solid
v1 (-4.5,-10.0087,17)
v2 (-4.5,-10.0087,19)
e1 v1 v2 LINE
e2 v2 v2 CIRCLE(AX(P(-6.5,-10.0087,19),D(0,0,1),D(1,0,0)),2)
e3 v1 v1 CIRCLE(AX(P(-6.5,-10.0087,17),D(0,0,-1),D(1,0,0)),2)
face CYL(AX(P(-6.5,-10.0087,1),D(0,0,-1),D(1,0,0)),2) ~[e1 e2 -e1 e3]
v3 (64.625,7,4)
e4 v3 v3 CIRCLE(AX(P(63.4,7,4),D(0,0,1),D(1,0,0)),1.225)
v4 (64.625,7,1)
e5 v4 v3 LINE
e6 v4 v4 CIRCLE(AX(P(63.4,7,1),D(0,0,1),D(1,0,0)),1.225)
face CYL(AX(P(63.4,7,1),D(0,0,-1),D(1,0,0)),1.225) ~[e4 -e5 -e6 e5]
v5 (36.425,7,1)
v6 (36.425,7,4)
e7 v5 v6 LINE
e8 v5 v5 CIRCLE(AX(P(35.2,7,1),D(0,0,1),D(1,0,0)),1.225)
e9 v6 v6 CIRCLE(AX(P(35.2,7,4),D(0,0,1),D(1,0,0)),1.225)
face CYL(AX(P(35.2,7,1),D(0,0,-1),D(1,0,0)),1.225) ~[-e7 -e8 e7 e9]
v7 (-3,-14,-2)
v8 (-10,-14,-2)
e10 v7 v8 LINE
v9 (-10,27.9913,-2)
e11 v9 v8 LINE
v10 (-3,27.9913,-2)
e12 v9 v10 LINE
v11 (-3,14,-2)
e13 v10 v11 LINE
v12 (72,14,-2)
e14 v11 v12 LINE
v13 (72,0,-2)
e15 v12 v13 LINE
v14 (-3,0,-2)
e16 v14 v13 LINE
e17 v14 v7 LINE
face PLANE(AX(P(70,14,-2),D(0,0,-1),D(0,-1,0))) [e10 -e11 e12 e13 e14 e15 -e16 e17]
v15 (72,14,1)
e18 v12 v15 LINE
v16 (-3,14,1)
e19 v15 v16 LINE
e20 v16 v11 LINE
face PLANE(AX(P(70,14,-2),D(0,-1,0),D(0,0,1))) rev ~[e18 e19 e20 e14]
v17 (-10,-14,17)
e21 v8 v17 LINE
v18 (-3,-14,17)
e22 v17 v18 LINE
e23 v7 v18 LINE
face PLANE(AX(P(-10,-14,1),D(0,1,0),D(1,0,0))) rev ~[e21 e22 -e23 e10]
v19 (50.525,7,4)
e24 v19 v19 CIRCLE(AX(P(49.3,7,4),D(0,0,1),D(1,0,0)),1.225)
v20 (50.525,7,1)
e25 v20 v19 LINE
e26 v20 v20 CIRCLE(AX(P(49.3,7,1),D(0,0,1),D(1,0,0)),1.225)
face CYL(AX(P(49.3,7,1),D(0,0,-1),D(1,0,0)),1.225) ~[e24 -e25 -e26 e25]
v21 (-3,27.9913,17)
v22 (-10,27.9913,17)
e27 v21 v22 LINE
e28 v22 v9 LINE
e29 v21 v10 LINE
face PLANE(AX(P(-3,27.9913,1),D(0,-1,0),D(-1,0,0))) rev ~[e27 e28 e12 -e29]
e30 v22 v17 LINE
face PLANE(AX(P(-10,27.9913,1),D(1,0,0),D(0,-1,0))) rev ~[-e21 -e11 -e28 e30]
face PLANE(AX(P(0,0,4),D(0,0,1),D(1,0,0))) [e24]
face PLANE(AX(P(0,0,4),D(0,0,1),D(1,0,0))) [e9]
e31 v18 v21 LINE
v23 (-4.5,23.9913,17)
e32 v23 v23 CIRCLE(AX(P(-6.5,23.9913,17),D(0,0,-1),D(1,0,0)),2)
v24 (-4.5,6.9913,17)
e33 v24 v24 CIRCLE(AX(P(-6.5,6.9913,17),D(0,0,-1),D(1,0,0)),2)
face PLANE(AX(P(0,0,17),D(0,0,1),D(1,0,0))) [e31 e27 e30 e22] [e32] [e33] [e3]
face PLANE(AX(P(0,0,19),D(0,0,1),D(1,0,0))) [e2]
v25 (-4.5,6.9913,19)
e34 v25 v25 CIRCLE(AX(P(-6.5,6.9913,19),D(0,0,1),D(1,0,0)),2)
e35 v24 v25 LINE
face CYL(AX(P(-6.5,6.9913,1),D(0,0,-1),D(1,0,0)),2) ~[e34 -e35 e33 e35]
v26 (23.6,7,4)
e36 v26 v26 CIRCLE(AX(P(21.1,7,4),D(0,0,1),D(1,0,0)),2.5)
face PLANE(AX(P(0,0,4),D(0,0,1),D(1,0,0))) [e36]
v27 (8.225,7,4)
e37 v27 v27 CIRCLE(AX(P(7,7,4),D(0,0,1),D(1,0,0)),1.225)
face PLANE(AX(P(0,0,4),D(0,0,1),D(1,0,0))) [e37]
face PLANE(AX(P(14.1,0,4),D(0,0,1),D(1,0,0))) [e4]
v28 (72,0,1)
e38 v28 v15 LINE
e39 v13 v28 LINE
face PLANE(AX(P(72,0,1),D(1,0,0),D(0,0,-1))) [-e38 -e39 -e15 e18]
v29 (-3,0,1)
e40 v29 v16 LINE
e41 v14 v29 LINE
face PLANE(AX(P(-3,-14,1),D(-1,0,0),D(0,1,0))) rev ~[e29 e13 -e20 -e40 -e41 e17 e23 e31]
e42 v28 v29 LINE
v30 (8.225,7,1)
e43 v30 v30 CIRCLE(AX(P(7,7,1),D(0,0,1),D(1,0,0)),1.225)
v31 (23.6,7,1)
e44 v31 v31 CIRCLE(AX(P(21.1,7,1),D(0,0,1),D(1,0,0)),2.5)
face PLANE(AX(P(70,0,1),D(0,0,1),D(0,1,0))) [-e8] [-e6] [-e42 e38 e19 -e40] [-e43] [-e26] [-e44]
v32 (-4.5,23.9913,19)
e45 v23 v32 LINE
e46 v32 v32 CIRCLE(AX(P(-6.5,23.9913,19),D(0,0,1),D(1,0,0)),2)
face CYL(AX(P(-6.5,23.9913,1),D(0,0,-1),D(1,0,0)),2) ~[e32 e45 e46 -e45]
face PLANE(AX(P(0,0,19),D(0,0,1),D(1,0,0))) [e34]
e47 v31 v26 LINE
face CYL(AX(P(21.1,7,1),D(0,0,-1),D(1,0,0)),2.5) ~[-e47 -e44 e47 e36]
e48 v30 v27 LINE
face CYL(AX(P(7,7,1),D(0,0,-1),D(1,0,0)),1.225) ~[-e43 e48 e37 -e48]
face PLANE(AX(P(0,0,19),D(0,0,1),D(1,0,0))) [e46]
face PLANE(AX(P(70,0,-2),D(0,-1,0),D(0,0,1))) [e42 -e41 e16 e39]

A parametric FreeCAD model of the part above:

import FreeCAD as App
import Part
import Sketcher
Q = App.Units.Quantity

doc = App.newDocument("Part")
params = doc.addObject("Spreadsheet::Sheet", "Params")
for row, (alias, value) in enumerate([
    ("sketch1_width", "70 mm"),
    ("sketch1_height", "14 mm"),
    ("pad1_length", "1 mm"),
    ("sketch2_diameter", "2.45 mm"),
    ("pad2_length", "3 mm"),
    ("sketch3_diameter", "5 mm"),
    ("pad3_length", "3 mm"),
    ("sketch4_diameter", "2.45 mm"),
    ("pad4_length", "3 mm"),
    ("linearpattern_pitch", "14.1 mm"),
    ("sketch5_width", "14 mm"),
    ("sketch5_height", "1 mm"),
    ("pad5_length", "10 mm"),
    ("sketch6_height", "1 mm"),
    ("pad6_length", "7 mm"),
    ("sketch7_width", "7 mm"),
    ("sketch7_width2", "73 mm"),
    ("sketch7_height", "14 mm"),
    ("pad7_length", "2 mm"),
    ("sketch8_diameter", "4 mm"),
    ("pad8_length", "18 mm"),
    ("sketch9_width", "7 mm"),
    ("pad9_length", "16 mm"),
    ("sketch10_width", "14 mm"),
    ("sketch10_height", "3 mm"),
    ("pad10_length", "2 mm"),
], start=1):
    params.set(f"A{row}", alias)
    params.set(f"B{row}", "=" + value)
    params.setAlias(f"B{row}", alias)

body = doc.addObject("PartDesign::Body", "Body")

sketch1 = body.newObject("Sketcher::SketchObject", "Sketch")
sketch1.AttachmentSupport = (doc.getObject("XY_Plane"), [""])
sketch1.MapMode = "FlatFace"
sketch1.addGeometry(Part.LineSegment(App.Vector(0, 14, 0), App.Vector(0, 0, 0)), False)
sketch1.addGeometry(Part.LineSegment(App.Vector(0, 0, 0), App.Vector(70, 0, 0)), False)
sketch1.addGeometry(Part.LineSegment(App.Vector(70, 0, 0), App.Vector(70, 14, 0)), False)
sketch1.addGeometry(Part.LineSegment(App.Vector(70, 14, 0), App.Vector(0, 14, 0)), False)
sketch1.addConstraint(Sketcher.Constraint("Coincident", 0, 2, 1, 1))
sketch1.addConstraint(Sketcher.Constraint("Coincident", 1, 2, 2, 1))
sketch1.addConstraint(Sketcher.Constraint("Coincident", 2, 2, 3, 1))
sketch1.addConstraint(Sketcher.Constraint("Coincident", 3, 2, 0, 1))
sketch1.addConstraint(Sketcher.Constraint("Vertical", 0))
sketch1.addConstraint(Sketcher.Constraint("Horizontal", 1))
sketch1.addConstraint(Sketcher.Constraint("Vertical", 2))
sketch1.addConstraint(Sketcher.Constraint("Horizontal", 3))
sketch1.addConstraint(Sketcher.Constraint("Coincident", 0, 2, -1, 1))
sketch1.addConstraint(Sketcher.Constraint("DistanceX", 1, 1, 1, 2, Q("70 mm")))
sketch1.addConstraint(Sketcher.Constraint("DistanceY", 0, 2, 0, 1, Q("14 mm")))
sketch1.setExpression("Constraints[9]", "Params.sketch1_width")
sketch1.setExpression("Constraints[10]", "Params.sketch1_height")
pad1 = body.newObject("PartDesign::Pad", "Pad")
pad1.Profile = sketch1
pad1.setExpression("Length", "Params.pad1_length")

sketch2 = body.newObject("Sketcher::SketchObject", "Sketch001")
sketch2.AttachmentSupport = (doc.getObject("XY_Plane"), [""])
sketch2.MapMode = "FlatFace"
sketch2.AttachmentOffset = App.Placement(App.Vector(0, 0, 1), App.Rotation())
sketch2.addGeometry(Part.Circle(App.Vector(7, 7, 0), App.Vector(0, 0, 1), 1.225), False)
sketch2.addGeometry(Part.Circle(App.Vector(35.2, 7, 0), App.Vector(0, 0, 1), 1.225), False)
sketch2.addConstraint(Sketcher.Constraint("Equal", 0, 1))
sketch2.addConstraint(Sketcher.Constraint("Horizontal", 0, 3, 1, 3))
sketch2.addConstraint(Sketcher.Constraint("Diameter", 0, Q("2.45 mm")))
sketch2.addConstraint(Sketcher.Constraint("DistanceX", 0, 3, 1, 3, Q("28.2 mm")))
sketch2.addConstraint(Sketcher.Constraint("DistanceX", -1, 1, 0, 3, Q("7 mm")))
sketch2.addConstraint(Sketcher.Constraint("DistanceY", -1, 1, 0, 3, Q("7 mm")))
sketch2.setExpression("Constraints[2]", "Params.sketch2_diameter")
pad2 = body.newObject("PartDesign::Pad", "Pad001")
pad2.Profile = sketch2
pad2.setExpression("Length", "Params.pad2_length")

sketch3 = body.newObject("Sketcher::SketchObject", "Sketch002")
sketch3.AttachmentSupport = (doc.getObject("XY_Plane"), [""])
sketch3.MapMode = "FlatFace"
sketch3.AttachmentOffset = App.Placement(App.Vector(0, 0, 1), App.Rotation())
sketch3.addGeometry(Part.Circle(App.Vector(21.1, 7, 0), App.Vector(0, 0, 1), 2.5), False)
sketch3.addConstraint(Sketcher.Constraint("Diameter", 0, Q("5 mm")))
sketch3.addConstraint(Sketcher.Constraint("DistanceY", -1, 1, 0, 3, Q("7 mm")))
sketch3.addConstraint(Sketcher.Constraint("DistanceX", -1, 1, 0, 3, Q("21.1 mm")))
sketch3.setExpression("Constraints[0]", "Params.sketch3_diameter")
pad3 = body.newObject("PartDesign::Pad", "Pad002")
pad3.Profile = sketch3
pad3.setExpression("Length", "Params.pad3_length")

sketch4 = body.newObject("Sketcher::SketchObject", "Sketch003")
sketch4.AttachmentSupport = (doc.getObject("XY_Plane"), [""])
sketch4.MapMode = "FlatFace"
sketch4.AttachmentOffset = App.Placement(App.Vector(0, 0, 1), App.Rotation())
sketch4.addGeometry(Part.Circle(App.Vector(49.3, 7, 0), App.Vector(0, 0, 1), 1.225), False)
sketch4.addConstraint(Sketcher.Constraint("Diameter", 0, Q("2.45 mm")))
sketch4.addConstraint(Sketcher.Constraint("DistanceY", -1, 1, 0, 3, Q("7 mm")))
sketch4.addConstraint(Sketcher.Constraint("DistanceX", -1, 1, 0, 3, Q("49.3 mm")))
sketch4.setExpression("Constraints[0]", "Params.sketch4_diameter")
pad4 = body.newObject("PartDesign::Pad", "Pad003")
pad4.Profile = sketch4
pad4.setExpression("Length", "Params.pad4_length")
doc.recompute()

linearpattern = body.newObject("PartDesign::LinearPattern", "LinearPattern")
linearpattern.Originals = [pad4]
linearpattern.Direction = (doc.getObject("X_Axis"), [""])
linearpattern.Mode = "offset"
linearpattern.setExpression("Offset", "Params.linearpattern_pitch")
linearpattern.Occurrences = 2
body.Tip = linearpattern

sketch5 = body.newObject("Sketcher::SketchObject", "Sketch004")
sketch5.AttachmentSupport = (doc.getObject("YZ_Plane"), [""])
sketch5.MapMode = "FlatFace"
sketch5.addGeometry(Part.LineSegment(App.Vector(0, 0, 0), App.Vector(0, 1, 0)), False)
sketch5.addGeometry(Part.LineSegment(App.Vector(0, 1, 0), App.Vector(14, 1, 0)), False)
sketch5.addGeometry(Part.LineSegment(App.Vector(14, 1, 0), App.Vector(14, 0, 0)), False)
sketch5.addGeometry(Part.LineSegment(App.Vector(14, 0, 0), App.Vector(0, 0, 0)), False)
sketch5.addConstraint(Sketcher.Constraint("Coincident", 0, 2, 1, 1))
sketch5.addConstraint(Sketcher.Constraint("Coincident", 1, 2, 2, 1))
sketch5.addConstraint(Sketcher.Constraint("Coincident", 2, 2, 3, 1))
sketch5.addConstraint(Sketcher.Constraint("Coincident", 3, 2, 0, 1))
sketch5.addConstraint(Sketcher.Constraint("Vertical", 0))
sketch5.addConstraint(Sketcher.Constraint("Horizontal", 1))
sketch5.addConstraint(Sketcher.Constraint("Vertical", 2))
sketch5.addConstraint(Sketcher.Constraint("Horizontal", 3))
sketch5.addConstraint(Sketcher.Constraint("Coincident", 3, 2, -1, 1))
sketch5.addConstraint(Sketcher.Constraint("DistanceX", 1, 1, 1, 2, Q("14 mm")))
sketch5.addConstraint(Sketcher.Constraint("DistanceY", 0, 1, 0, 2, Q("1 mm")))
sketch5.setExpression("Constraints[9]", "Params.sketch5_width")
sketch5.setExpression("Constraints[10]", "Params.sketch5_height")
pad5 = body.newObject("PartDesign::Pad", "Pad004")
pad5.Profile = sketch5
pad5.setExpression("Length", "Params.pad5_length")
pad5.Reversed = True

sketch6 = body.newObject("Sketcher::SketchObject", "Sketch005")
sketch6.AttachmentSupport = (doc.getObject("YZ_Plane"), [""])
sketch6.MapMode = "FlatFace"
sketch6.AttachmentOffset = App.Placement(App.Vector(0, 0, -10), App.Rotation())
sketch6.addGeometry(Part.LineSegment(App.Vector(-14, 0, 0), App.Vector(-14, 1, 0)), False)
sketch6.addGeometry(Part.LineSegment(App.Vector(-14, 1, 0), App.Vector(27.9913, 1, 0)), False)
sketch6.addGeometry(Part.LineSegment(App.Vector(27.9913, 1, 0), App.Vector(27.9913, 0, 0)), False)
sketch6.addGeometry(Part.LineSegment(App.Vector(27.9913, 0, 0), App.Vector(-14, 0, 0)), False)
sketch6.addConstraint(Sketcher.Constraint("Coincident", 0, 2, 1, 1))
sketch6.addConstraint(Sketcher.Constraint("Coincident", 1, 2, 2, 1))
sketch6.addConstraint(Sketcher.Constraint("Coincident", 2, 2, 3, 1))
sketch6.addConstraint(Sketcher.Constraint("Coincident", 3, 2, 0, 1))
sketch6.addConstraint(Sketcher.Constraint("Vertical", 0))
sketch6.addConstraint(Sketcher.Constraint("Horizontal", 1))
sketch6.addConstraint(Sketcher.Constraint("Vertical", 2))
sketch6.addConstraint(Sketcher.Constraint("Horizontal", 3))
sketch6.addConstraint(Sketcher.Constraint("PointOnObject", 2, 2, -1))
sketch6.addConstraint(Sketcher.Constraint("DistanceX", 0, 2, -1, 1, Q("14 mm")))
sketch6.addConstraint(Sketcher.Constraint("DistanceY", 0, 1, 0, 2, Q("1 mm")))
sketch6.addConstraint(Sketcher.Constraint("DistanceX", 1, 1, 1, 2, Q("41.9913 mm")))
sketch6.setExpression("Constraints[10]", "Params.sketch6_height")
pad6 = body.newObject("PartDesign::Pad", "Pad005")
pad6.Profile = sketch6
pad6.setExpression("Length", "Params.pad6_length")

sketch7 = body.newObject("Sketcher::SketchObject", "Sketch006")
sketch7.AttachmentSupport = (doc.getObject("XY_Plane"), [""])
sketch7.MapMode = "FlatFace"
sketch7.addGeometry(Part.LineSegment(App.Vector(-10, -14, 0), App.Vector(-10, 27.9913, 0)), False)
sketch7.addGeometry(Part.LineSegment(App.Vector(-10, 27.9913, 0), App.Vector(-3, 27.9913, 0)), False)
sketch7.addGeometry(Part.LineSegment(App.Vector(-3, 27.9913, 0), App.Vector(-3, 14, 0)), False)
sketch7.addGeometry(Part.LineSegment(App.Vector(-3, 14, 0), App.Vector(70, 14, 0)), False)
sketch7.addGeometry(Part.LineSegment(App.Vector(70, 14, 0), App.Vector(70, 0, 0)), False)
sketch7.addGeometry(Part.LineSegment(App.Vector(70, 0, 0), App.Vector(-3, 0, 0)), False)
sketch7.addGeometry(Part.LineSegment(App.Vector(-3, 0, 0), App.Vector(-3, -14, 0)), False)
sketch7.addGeometry(Part.LineSegment(App.Vector(-3, -14, 0), App.Vector(-10, -14, 0)), False)
sketch7.addConstraint(Sketcher.Constraint("Coincident", 0, 2, 1, 1))
sketch7.addConstraint(Sketcher.Constraint("Coincident", 1, 2, 2, 1))
sketch7.addConstraint(Sketcher.Constraint("Coincident", 2, 2, 3, 1))
sketch7.addConstraint(Sketcher.Constraint("Coincident", 3, 2, 4, 1))
sketch7.addConstraint(Sketcher.Constraint("Coincident", 4, 2, 5, 1))
sketch7.addConstraint(Sketcher.Constraint("Coincident", 5, 2, 6, 1))
sketch7.addConstraint(Sketcher.Constraint("Coincident", 6, 2, 7, 1))
sketch7.addConstraint(Sketcher.Constraint("Coincident", 7, 2, 0, 1))
sketch7.addConstraint(Sketcher.Constraint("Vertical", 0))
sketch7.addConstraint(Sketcher.Constraint("Horizontal", 1))
sketch7.addConstraint(Sketcher.Constraint("Vertical", 2))
sketch7.addConstraint(Sketcher.Constraint("Horizontal", 3))
sketch7.addConstraint(Sketcher.Constraint("Vertical", 4))
sketch7.addConstraint(Sketcher.Constraint("Horizontal", 5))
sketch7.addConstraint(Sketcher.Constraint("Vertical", 6))
sketch7.addConstraint(Sketcher.Constraint("Horizontal", 7))
sketch7.addConstraint(Sketcher.Constraint("Symmetric", 2, 2, 6, 2, -1))
sketch7.addConstraint(Sketcher.Constraint("PointOnObject", 4, 2, -1))
sketch7.addConstraint(Sketcher.Constraint("DistanceX", 1, 1, 1, 2, Q("7 mm")))
sketch7.addConstraint(Sketcher.Constraint("DistanceX", 3, 1, 3, 2, Q("73 mm")))
sketch7.addConstraint(Sketcher.Constraint("DistanceY", 4, 2, 4, 1, Q("14 mm")))
sketch7.addConstraint(Sketcher.Constraint("DistanceX", 0, 2, -1, 1, Q("10 mm")))
sketch7.addConstraint(Sketcher.Constraint("DistanceY", 0, 1, 0, 2, Q("41.9913 mm")))
sketch7.setExpression("Constraints[18]", "Params.sketch7_width")
sketch7.setExpression("Constraints[19]", "Params.sketch7_width2")
sketch7.setExpression("Constraints[20]", "Params.sketch7_height")
pad7 = body.newObject("PartDesign::Pad", "Pad006")
pad7.Profile = sketch7
pad7.setExpression("Length", "Params.pad7_length")
pad7.Reversed = True

sketch8 = body.newObject("Sketcher::SketchObject", "Sketch007")
sketch8.AttachmentSupport = (doc.getObject("XY_Plane"), [""])
sketch8.MapMode = "FlatFace"
sketch8.AttachmentOffset = App.Placement(App.Vector(0, 0, 1), App.Rotation())
sketch8.addGeometry(Part.Circle(App.Vector(-6.5, 23.9913, 0), App.Vector(0, 0, 1), 2), False)
sketch8.addGeometry(Part.Circle(App.Vector(-6.5, 6.9913, 0), App.Vector(0, 0, 1), 2), False)
sketch8.addGeometry(Part.Circle(App.Vector(-6.5, -10.0087, 0), App.Vector(0, 0, 1), 2), False)
sketch8.addConstraint(Sketcher.Constraint("Equal", 0, 1))
sketch8.addConstraint(Sketcher.Constraint("Equal", 1, 2))
sketch8.addConstraint(Sketcher.Constraint("Vertical", 0, 3, 1, 3))
sketch8.addConstraint(Sketcher.Constraint("Vertical", 1, 3, 2, 3))
sketch8.addConstraint(Sketcher.Constraint("Diameter", 0, Q("4 mm")))
sketch8.addConstraint(Sketcher.Constraint("DistanceY", 1, 3, 0, 3, Q("17 mm")))
sketch8.addConstraint(Sketcher.Constraint("DistanceY", 2, 3, 1, 3, Q("17 mm")))
sketch8.addConstraint(Sketcher.Constraint("DistanceX", 0, 3, -1, 1, Q("6.5 mm")))
sketch8.addConstraint(Sketcher.Constraint("DistanceY", -1, 1, 0, 3, Q("23.9913 mm")))
sketch8.setExpression("Constraints[4]", "Params.sketch8_diameter")
pad8 = body.newObject("PartDesign::Pad", "Pad007")
pad8.Profile = sketch8
pad8.setExpression("Length", "Params.pad8_length")

sketch9 = body.newObject("Sketcher::SketchObject", "Sketch008")
sketch9.AttachmentSupport = (doc.getObject("XY_Plane"), [""])
sketch9.MapMode = "FlatFace"
sketch9.AttachmentOffset = App.Placement(App.Vector(0, 0, 1), App.Rotation())
sketch9.addGeometry(Part.LineSegment(App.Vector(-10, 27.9913, 0), App.Vector(-10, -14, 0)), False)
sketch9.addGeometry(Part.LineSegment(App.Vector(-10, -14, 0), App.Vector(-3, -14, 0)), False)
sketch9.addGeometry(Part.LineSegment(App.Vector(-3, -14, 0), App.Vector(-3, 27.9913, 0)), False)
sketch9.addGeometry(Part.LineSegment(App.Vector(-3, 27.9913, 0), App.Vector(-10, 27.9913, 0)), False)
sketch9.addConstraint(Sketcher.Constraint("Coincident", 0, 2, 1, 1))
sketch9.addConstraint(Sketcher.Constraint("Coincident", 1, 2, 2, 1))
sketch9.addConstraint(Sketcher.Constraint("Coincident", 2, 2, 3, 1))
sketch9.addConstraint(Sketcher.Constraint("Coincident", 3, 2, 0, 1))
sketch9.addConstraint(Sketcher.Constraint("Vertical", 0))
sketch9.addConstraint(Sketcher.Constraint("Horizontal", 1))
sketch9.addConstraint(Sketcher.Constraint("Vertical", 2))
sketch9.addConstraint(Sketcher.Constraint("Horizontal", 3))
sketch9.addConstraint(Sketcher.Constraint("DistanceX", 1, 1, 1, 2, Q("7 mm")))
sketch9.addConstraint(Sketcher.Constraint("DistanceX", 0, 2, -1, 1, Q("10 mm")))
sketch9.addConstraint(Sketcher.Constraint("DistanceY", 0, 2, -1, 1, Q("14 mm")))
sketch9.addConstraint(Sketcher.Constraint("DistanceY", 0, 2, 0, 1, Q("41.9913 mm")))
sketch9.setExpression("Constraints[8]", "Params.sketch9_width")
pad9 = body.newObject("PartDesign::Pad", "Pad008")
pad9.Profile = sketch9
pad9.setExpression("Length", "Params.pad9_length")

sketch10 = body.newObject("Sketcher::SketchObject", "Sketch009")
sketch10.AttachmentSupport = (doc.getObject("YZ_Plane"), [""])
sketch10.MapMode = "FlatFace"
sketch10.AttachmentOffset = App.Placement(App.Vector(0, 0, 70), App.Rotation())
sketch10.addGeometry(Part.LineSegment(App.Vector(0, 1, 0), App.Vector(0, -2, 0)), False)
sketch10.addGeometry(Part.LineSegment(App.Vector(0, -2, 0), App.Vector(14, -2, 0)), False)
sketch10.addGeometry(Part.LineSegment(App.Vector(14, -2, 0), App.Vector(14, 1, 0)), False)
sketch10.addGeometry(Part.LineSegment(App.Vector(14, 1, 0), App.Vector(0, 1, 0)), False)
sketch10.addConstraint(Sketcher.Constraint("Coincident", 0, 2, 1, 1))
sketch10.addConstraint(Sketcher.Constraint("Coincident", 1, 2, 2, 1))
sketch10.addConstraint(Sketcher.Constraint("Coincident", 2, 2, 3, 1))
sketch10.addConstraint(Sketcher.Constraint("Coincident", 3, 2, 0, 1))
sketch10.addConstraint(Sketcher.Constraint("Vertical", 0))
sketch10.addConstraint(Sketcher.Constraint("Horizontal", 1))
sketch10.addConstraint(Sketcher.Constraint("Vertical", 2))
sketch10.addConstraint(Sketcher.Constraint("Horizontal", 3))
sketch10.addConstraint(Sketcher.Constraint("PointOnObject", 0, 2, -2))
sketch10.addConstraint(Sketcher.Constraint("DistanceX", 1, 1, 1, 2, Q("14 mm")))
sketch10.addConstraint(Sketcher.Constraint("DistanceY", 0, 2, 0, 1, Q("3 mm")))
sketch10.addConstraint(Sketcher.Constraint("DistanceY", 0, 2, -1, 1, Q("2 mm")))
sketch10.setExpression("Constraints[9]", "Params.sketch10_width")
sketch10.setExpression("Constraints[10]", "Params.sketch10_height")
pad10 = body.newObject("PartDesign::Pad", "Pad009")
pad10.Profile = sketch10
pad10.setExpression("Length", "Params.pad10_length")

doc.recompute()
